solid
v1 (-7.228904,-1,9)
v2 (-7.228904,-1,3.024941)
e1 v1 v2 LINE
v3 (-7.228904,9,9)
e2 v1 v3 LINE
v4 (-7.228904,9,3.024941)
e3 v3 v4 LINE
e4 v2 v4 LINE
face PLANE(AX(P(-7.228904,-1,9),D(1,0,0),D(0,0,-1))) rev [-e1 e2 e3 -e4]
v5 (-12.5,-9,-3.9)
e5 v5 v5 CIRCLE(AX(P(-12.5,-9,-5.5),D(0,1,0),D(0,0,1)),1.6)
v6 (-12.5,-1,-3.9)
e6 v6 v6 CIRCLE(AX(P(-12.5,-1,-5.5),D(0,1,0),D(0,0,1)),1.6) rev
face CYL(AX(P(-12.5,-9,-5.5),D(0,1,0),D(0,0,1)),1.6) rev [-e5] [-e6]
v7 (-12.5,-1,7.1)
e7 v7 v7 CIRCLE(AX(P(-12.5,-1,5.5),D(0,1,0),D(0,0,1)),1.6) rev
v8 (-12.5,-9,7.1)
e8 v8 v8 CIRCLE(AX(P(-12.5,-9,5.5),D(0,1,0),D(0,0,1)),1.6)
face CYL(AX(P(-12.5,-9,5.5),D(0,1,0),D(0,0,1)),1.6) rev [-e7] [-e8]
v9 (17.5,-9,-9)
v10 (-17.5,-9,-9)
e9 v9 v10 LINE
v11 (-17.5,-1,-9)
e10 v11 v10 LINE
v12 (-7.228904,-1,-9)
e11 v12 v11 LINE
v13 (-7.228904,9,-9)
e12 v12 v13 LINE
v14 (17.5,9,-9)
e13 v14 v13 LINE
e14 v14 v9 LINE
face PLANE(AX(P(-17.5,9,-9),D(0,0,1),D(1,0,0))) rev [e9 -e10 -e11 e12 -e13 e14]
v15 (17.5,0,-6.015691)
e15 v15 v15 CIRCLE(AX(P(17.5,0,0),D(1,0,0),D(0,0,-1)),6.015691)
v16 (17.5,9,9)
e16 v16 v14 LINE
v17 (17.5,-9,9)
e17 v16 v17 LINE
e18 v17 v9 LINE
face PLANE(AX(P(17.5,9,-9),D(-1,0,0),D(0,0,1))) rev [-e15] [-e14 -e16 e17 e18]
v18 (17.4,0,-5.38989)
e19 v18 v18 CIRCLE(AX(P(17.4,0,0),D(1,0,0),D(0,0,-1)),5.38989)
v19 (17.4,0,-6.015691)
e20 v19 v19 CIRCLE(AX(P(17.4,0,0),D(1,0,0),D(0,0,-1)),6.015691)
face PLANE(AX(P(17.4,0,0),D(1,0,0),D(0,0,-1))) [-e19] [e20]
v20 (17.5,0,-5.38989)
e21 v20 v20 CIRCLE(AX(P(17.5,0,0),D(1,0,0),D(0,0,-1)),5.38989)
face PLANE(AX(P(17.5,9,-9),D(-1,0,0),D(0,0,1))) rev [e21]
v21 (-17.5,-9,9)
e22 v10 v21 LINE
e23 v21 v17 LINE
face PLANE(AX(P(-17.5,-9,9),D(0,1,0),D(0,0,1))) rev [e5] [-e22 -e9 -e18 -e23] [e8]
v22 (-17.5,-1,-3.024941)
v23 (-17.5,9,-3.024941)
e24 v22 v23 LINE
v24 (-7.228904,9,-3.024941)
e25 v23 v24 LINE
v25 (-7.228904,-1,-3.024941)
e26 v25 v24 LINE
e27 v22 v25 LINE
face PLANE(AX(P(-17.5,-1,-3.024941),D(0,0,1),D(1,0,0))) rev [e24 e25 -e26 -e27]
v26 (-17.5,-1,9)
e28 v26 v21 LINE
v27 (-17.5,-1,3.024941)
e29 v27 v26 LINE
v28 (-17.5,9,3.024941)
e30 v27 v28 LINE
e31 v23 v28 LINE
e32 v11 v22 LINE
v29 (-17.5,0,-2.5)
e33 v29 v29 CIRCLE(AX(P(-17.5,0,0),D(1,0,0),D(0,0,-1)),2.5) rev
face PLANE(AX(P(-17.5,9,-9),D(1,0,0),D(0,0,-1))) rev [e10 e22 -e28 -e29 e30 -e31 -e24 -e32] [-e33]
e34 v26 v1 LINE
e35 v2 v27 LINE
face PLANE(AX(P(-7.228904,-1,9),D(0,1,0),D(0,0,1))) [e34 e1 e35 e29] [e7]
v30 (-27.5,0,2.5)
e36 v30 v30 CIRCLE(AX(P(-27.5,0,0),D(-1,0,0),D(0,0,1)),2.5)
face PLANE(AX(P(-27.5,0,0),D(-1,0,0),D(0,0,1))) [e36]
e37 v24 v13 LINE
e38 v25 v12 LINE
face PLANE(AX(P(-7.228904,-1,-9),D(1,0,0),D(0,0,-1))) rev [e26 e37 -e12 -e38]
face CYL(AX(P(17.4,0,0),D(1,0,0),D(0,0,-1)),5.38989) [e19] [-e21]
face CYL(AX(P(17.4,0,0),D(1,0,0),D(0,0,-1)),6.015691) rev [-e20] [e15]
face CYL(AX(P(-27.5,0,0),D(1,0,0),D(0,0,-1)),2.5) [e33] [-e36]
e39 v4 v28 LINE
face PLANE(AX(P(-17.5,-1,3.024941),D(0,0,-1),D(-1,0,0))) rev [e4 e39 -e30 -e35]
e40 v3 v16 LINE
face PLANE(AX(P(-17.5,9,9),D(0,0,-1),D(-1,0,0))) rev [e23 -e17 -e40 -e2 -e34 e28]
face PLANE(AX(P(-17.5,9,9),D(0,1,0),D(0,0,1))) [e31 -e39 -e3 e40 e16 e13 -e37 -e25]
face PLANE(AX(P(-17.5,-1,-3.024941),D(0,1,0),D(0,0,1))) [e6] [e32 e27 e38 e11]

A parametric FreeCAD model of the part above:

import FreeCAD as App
import Part
import Sketcher
Q = App.Units.Quantity

doc = App.newDocument("Part")
body = doc.addObject("PartDesign::Body", "Body")

sketch1 = doc.addObject("Sketcher::SketchObject", "Sketch")
body.addObject(sketch1)
sketch1.AttachmentSupport = (doc.XZ_Plane, [""])
sketch1.MapMode = "FlatFace"
sketch1.addGeometry(Part.LineSegment(App.Vector(-17.5, -9, 0), App.Vector(-17.5, 9, 0)), False)
sketch1.addGeometry(Part.LineSegment(App.Vector(-17.5, 9, 0), App.Vector(17.5, 9, 0)), False)
sketch1.addGeometry(Part.LineSegment(App.Vector(17.5, 9, 0), App.Vector(17.5, -9, 0)), False)
sketch1.addGeometry(Part.LineSegment(App.Vector(17.5, -9, 0), App.Vector(-17.5, -9, 0)), False)
sketch1.addConstraint(Sketcher.Constraint("Coincident", 0, 2, 1, 1))
sketch1.addConstraint(Sketcher.Constraint("Coincident", 1, 2, 2, 1))
sketch1.addConstraint(Sketcher.Constraint("Coincident", 2, 2, 3, 1))
sketch1.addConstraint(Sketcher.Constraint("Coincident", 3, 2, 0, 1))
sketch1.addConstraint(Sketcher.Constraint("Vertical", 0))
sketch1.addConstraint(Sketcher.Constraint("Horizontal", 1))
sketch1.addConstraint(Sketcher.Constraint("Vertical", 2))
sketch1.addConstraint(Sketcher.Constraint("Horizontal", 3))
sketch1.addConstraint(Sketcher.Constraint("Symmetric", 0, 2, 2, 2, -1, 1))
sketch1.addConstraint(Sketcher.Constraint("DistanceX", 1, 1, 1, 2, Q("35 mm")))
sketch1.addConstraint(Sketcher.Constraint("DistanceY", 0, 1, 0, 2, Q("18 mm")))
pad1 = doc.addObject("PartDesign::Pad", "Pad")
body.addObject(pad1)
pad1.Profile = sketch1
pad1.Length = 18
pad1.Midplane = True

sketch2 = doc.addObject("Sketcher::SketchObject", "Sketch001")
body.addObject(sketch2)
sketch2.AttachmentSupport = (doc.YZ_Plane, [""])
sketch2.MapMode = "FlatFace"
sketch2.AttachmentOffset = App.Placement(App.Vector(0, 0, 17.5), App.Rotation())
sketch2.addGeometry(Part.Circle(App.Vector(0, 0, 0), App.Vector(0, 0, 1), 6.015691), False)
sketch2.addGeometry(Part.Circle(App.Vector(0, 0, 0), App.Vector(0, 0, 1), 5.38989), False)
sketch2.addConstraint(Sketcher.Constraint("Coincident", 0, 3, -1, 1))
sketch2.addConstraint(Sketcher.Constraint("Coincident", 1, 3, -1, 1))
sketch2.addConstraint(Sketcher.Constraint("Diameter", 0, Q("12.031382 mm")))
sketch2.addConstraint(Sketcher.Constraint("Diameter", 1, Q("10.779781 mm")))
pocket1 = doc.addObject("PartDesign::Pocket", "Pocket")
body.addObject(pocket1)
pocket1.Profile = sketch2
pocket1.Length = 0.1

sketch3 = doc.addObject("Sketcher::SketchObject", "Sketch002")
body.addObject(sketch3)
sketch3.AttachmentSupport = (doc.XZ_Plane, [""])
sketch3.MapMode = "FlatFace"
sketch3.AttachmentOffset = App.Placement(App.Vector(0, 0, -9), App.Rotation())
sketch3.addGeometry(Part.Circle(App.Vector(-12.5, -5.5, 0), App.Vector(0, 0, 1), 1.6), False)
sketch3.addGeometry(Part.Circle(App.Vector(-12.5, 5.5, 0), App.Vector(0, 0, 1), 1.6), False)
sketch3.addConstraint(Sketcher.Constraint("Equal", 0, 1))
sketch3.addConstraint(Sketcher.Constraint("Symmetric", 0, 3, 1, 3, -1))
sketch3.addConstraint(Sketcher.Constraint("Diameter", 0, Q("3.2 mm")))
sketch3.addConstraint(Sketcher.Constraint("DistanceY", 0, 3, 1, 3, Q("11 mm")))
sketch3.addConstraint(Sketcher.Constraint("DistanceX", 0, 3, -1, 1, Q("12.5 mm")))
pocket2 = doc.addObject("PartDesign::Pocket", "Pocket001")
body.addObject(pocket2)
pocket2.Profile = sketch3
pocket2.Type = "ThroughAll"
pocket2.Reversed = True

sketch4 = doc.addObject("Sketcher::SketchObject", "Sketch003")
body.addObject(sketch4)
sketch4.AttachmentSupport = (doc.YZ_Plane, [""])
sketch4.MapMode = "FlatFace"
sketch4.AttachmentOffset = App.Placement(App.Vector(0, 0, -17.5), App.Rotation())
sketch4.addGeometry(Part.Circle(App.Vector(0, 0, 0), App.Vector(0, 0, 1), 2.5), False)
sketch4.addConstraint(Sketcher.Constraint("Coincident", 0, 3, -1, 1))
sketch4.addConstraint(Sketcher.Constraint("Diameter", 0, Q("5 mm")))
pad2 = doc.addObject("PartDesign::Pad", "Pad001")
body.addObject(pad2)
pad2.Profile = sketch4
pad2.Length = 10
pad2.Reversed = True

sketch5 = doc.addObject("Sketcher::SketchObject", "Sketch004")
body.addObject(sketch5)
sketch5.AttachmentSupport = (doc.XZ_Plane, [""])
sketch5.MapMode = "FlatFace"
sketch5.AttachmentOffset = App.Placement(App.Vector(0, 0, -9), App.Rotation())
sketch5.addGeometry(Part.LineSegment(App.Vector(-17.5, -9, 0), App.Vector(-17.5, -3.024941, 0)), False)
sketch5.addGeometry(Part.LineSegment(App.Vector(-17.5, -3.024941, 0), App.Vector(-7.228904, -3.024941, 0)), False)
sketch5.addGeometry(Part.LineSegment(App.Vector(-7.228904, -3.024941, 0), App.Vector(-7.228904, -9, 0)), False)
sketch5.addGeometry(Part.LineSegment(App.Vector(-7.228904, -9, 0), App.Vector(-17.5, -9, 0)), False)
sketch5.addGeometry(Part.LineSegment(App.Vector(-17.5, 3.024941, 0), App.Vector(-17.5, 9, 0)), False)
sketch5.addGeometry(Part.LineSegment(App.Vector(-17.5, 9, 0), App.Vector(-7.228904, 9, 0)), False)
sketch5.addGeometry(Part.LineSegment(App.Vector(-7.228904, 9, 0), App.Vector(-7.228904, 3.024941, 0)), False)
sketch5.addGeometry(Part.LineSegment(App.Vector(-7.228904, 3.024941, 0), App.Vector(-17.5, 3.024941, 0)), False)
sketch5.addConstraint(Sketcher.Constraint("Coincident", 0, 2, 1, 1))
sketch5.addConstraint(Sketcher.Constraint("Coincident", 1, 2, 2, 1))
sketch5.addConstraint(Sketcher.Constraint("Coincident", 2, 2, 3, 1))
sketch5.addConstraint(Sketcher.Constraint("Coincident", 3, 2, 0, 1))
sketch5.addConstraint(Sketcher.Constraint("Coincident", 4, 2, 5, 1))
sketch5.addConstraint(Sketcher.Constraint("Coincident", 5, 2, 6, 1))
sketch5.addConstraint(Sketcher.Constraint("Coincident", 6, 2, 7, 1))
sketch5.addConstraint(Sketcher.Constraint("Coincident", 7, 2, 4, 1))
sketch5.addConstraint(Sketcher.Constraint("Vertical", 0))
sketch5.addConstraint(Sketcher.Constraint("Horizontal", 1))
sketch5.addConstraint(Sketcher.Constraint("Vertical", 2))
sketch5.addConstraint(Sketcher.Constraint("Horizontal", 3))
sketch5.addConstraint(Sketcher.Constraint("Vertical", 4))
sketch5.addConstraint(Sketcher.Constraint("Horizontal", 5))
sketch5.addConstraint(Sketcher.Constraint("Vertical", 6))
sketch5.addConstraint(Sketcher.Constraint("Horizontal", 7))
sketch5.addConstraint(Sketcher.Constraint("Symmetric", 3, 2, 4, 2, -1))
sketch5.addConstraint(Sketcher.Constraint("Symmetric", 1, 2, 6, 2, -1))
sketch5.addConstraint(Sketcher.Constraint("DistanceY", 2, 2, -1, 1, Q("9 mm")))
sketch5.addConstraint(Sketcher.Constraint("DistanceX", 0, 2, -1, 1, Q("17.5 mm")))
sketch5.addConstraint(Sketcher.Constraint("DistanceY", 0, 1, 0, 2, Q("5.975059 mm")))
sketch5.addConstraint(Sketcher.Constraint("DistanceX", 1, 1, 1, 2, Q("10.271096 mm")))
pocket3 = doc.addObject("PartDesign::Pocket", "Pocket002")
body.addObject(pocket3)
pocket3.Profile = sketch5
pocket3.Length = 10
pocket3.Reversed = True

doc.recompute()
